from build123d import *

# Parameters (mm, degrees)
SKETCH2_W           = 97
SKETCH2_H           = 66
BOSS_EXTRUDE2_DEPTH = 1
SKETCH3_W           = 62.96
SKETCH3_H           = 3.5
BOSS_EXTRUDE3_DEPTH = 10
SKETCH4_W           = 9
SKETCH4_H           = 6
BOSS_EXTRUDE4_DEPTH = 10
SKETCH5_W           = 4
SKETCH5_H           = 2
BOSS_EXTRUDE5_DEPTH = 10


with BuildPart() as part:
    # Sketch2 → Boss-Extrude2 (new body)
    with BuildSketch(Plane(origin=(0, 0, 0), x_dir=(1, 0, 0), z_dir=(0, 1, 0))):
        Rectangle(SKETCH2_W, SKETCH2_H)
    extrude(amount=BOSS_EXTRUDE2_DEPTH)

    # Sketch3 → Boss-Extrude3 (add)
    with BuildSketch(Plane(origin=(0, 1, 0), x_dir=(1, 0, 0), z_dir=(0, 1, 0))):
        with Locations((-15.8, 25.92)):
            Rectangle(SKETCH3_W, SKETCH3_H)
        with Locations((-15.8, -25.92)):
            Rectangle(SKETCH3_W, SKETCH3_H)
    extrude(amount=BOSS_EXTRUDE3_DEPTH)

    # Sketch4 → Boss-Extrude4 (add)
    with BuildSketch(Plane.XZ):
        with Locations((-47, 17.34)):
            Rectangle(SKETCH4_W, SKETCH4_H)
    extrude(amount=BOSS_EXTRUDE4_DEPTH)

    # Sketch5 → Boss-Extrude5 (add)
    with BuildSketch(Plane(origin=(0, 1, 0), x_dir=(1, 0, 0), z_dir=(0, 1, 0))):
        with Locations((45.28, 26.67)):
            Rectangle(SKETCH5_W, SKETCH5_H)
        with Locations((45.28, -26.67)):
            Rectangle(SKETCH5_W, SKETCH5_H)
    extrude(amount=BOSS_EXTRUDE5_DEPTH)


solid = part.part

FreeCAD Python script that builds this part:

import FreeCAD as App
import Part
import Sketcher

V = App.Vector
Q = App.Units.Quantity


def add_polygon(sketch, points):
    """Adds a closed chain of lines whose ends are joined by coincident constraints."""
    first, n = sketch.GeometryCount, len(points)
    for a, b in zip(points, points[1:] + points[:1]):
        sketch.addGeometry(Part.LineSegment(App.Vector(*a, 0), App.Vector(*b, 0)), False)
    for i in range(n):
        sketch.addConstraint(Sketcher.Constraint("Coincident", first + i, 2, first + (i + 1) % n, 1))

doc = App.newDocument("Part")
body = doc.addObject("PartDesign::Body", "Body")

sketch1 = body.newObject("Sketcher::SketchObject", "Sketch")
sketch1.AttachmentSupport = (doc.getObject("XZ_Plane"), [""])
sketch1.MapMode = "FlatFace"
add_polygon(sketch1, [(-48.5, -33), (-48.5, 33), (48.5, 33), (48.5, -33)])
sketch1.addConstraint(Sketcher.Constraint("Vertical", 0))
sketch1.addConstraint(Sketcher.Constraint("Horizontal", 1))
sketch1.addConstraint(Sketcher.Constraint("Vertical", 2))
sketch1.addConstraint(Sketcher.Constraint("Horizontal", 3))
sketch1.addConstraint(Sketcher.Constraint("Symmetric", 0, 2, 2, 2, -1, 1))
sketch1.addConstraint(Sketcher.Constraint("DistanceX", 1, 1, 1, 2, Q("97 mm")))
sketch1.addConstraint(Sketcher.Constraint("DistanceY", 0, 1, 0, 2, Q("66 mm")))
pad1 = body.newObject("PartDesign::Pad", "Pad")
pad1.Profile = sketch1
pad1.Length = 1
pad1.Reversed = True

sketch2 = body.newObject("Sketcher::SketchObject", "Sketch001")
sketch2.AttachmentSupport = (doc.getObject("XZ_Plane"), [""])
sketch2.MapMode = "FlatFace"
sketch2.AttachmentOffset = App.Placement(V(0, 0, -1), App.Rotation())
add_polygon(sketch2, [(-47.28, -27.67), (-47.28, -24.17), (15.68, -24.17), (15.68, -27.67)])
add_polygon(sketch2, [(-47.28, 24.17), (-47.28, 27.67), (15.68, 27.67), (15.68, 24.17)])
sketch2.addConstraint(Sketcher.Constraint("Vertical", 0))
sketch2.addConstraint(Sketcher.Constraint("Horizontal", 1))
sketch2.addConstraint(Sketcher.Constraint("Vertical", 2))
sketch2.addConstraint(Sketcher.Constraint("Horizontal", 3))
sketch2.addConstraint(Sketcher.Constraint("Vertical", 4))
sketch2.addConstraint(Sketcher.Constraint("Horizontal", 5))
sketch2.addConstraint(Sketcher.Constraint("Vertical", 6))
sketch2.addConstraint(Sketcher.Constraint("Horizontal", 7))
sketch2.addConstraint(Sketcher.Constraint("Symmetric", 3, 2, 4, 2, -1))
sketch2.addConstraint(Sketcher.Constraint("Symmetric", 1, 2, 6, 2, -1))
sketch2.addConstraint(Sketcher.Constraint("DistanceY", 0, 1, 0, 2, Q("3.5 mm")))
sketch2.addConstraint(Sketcher.Constraint("DistanceX", 1, 1, 1, 2, Q("62.96 mm")))
sketch2.addConstraint(Sketcher.Constraint("DistanceX", 0, 2, -1, 1, Q("47.28 mm")))
sketch2.addConstraint(Sketcher.Constraint("DistanceY", 0, 2, -1, 1, Q("24.17 mm")))
pad2 = body.newObject("PartDesign::Pad", "Pad001")
pad2.Profile = sketch2
pad2.Length = 10
pad2.Reversed = True

sketch3 = body.newObject("Sketcher::SketchObject", "Sketch002")
sketch3.AttachmentSupport = (doc.getObject("XZ_Plane"), [""])
sketch3.MapMode = "FlatFace"
add_polygon(sketch3, [(-51.5, 20.34), (-51.5, 14.34), (-42.5, 14.34), (-42.5, 20.34)])
sketch3.addConstraint(Sketcher.Constraint("Vertical", 0))
sketch3.addConstraint(Sketcher.Constraint("Horizontal", 1))
sketch3.addConstraint(Sketcher.Constraint("Vertical", 2))
sketch3.addConstraint(Sketcher.Constraint("Horizontal", 3))
sketch3.addConstraint(Sketcher.Constraint("DistanceX", 1, 1, 1, 2, Q("9 mm")))
sketch3.addConstraint(Sketcher.Constraint("DistanceY", 0, 2, 0, 1, Q("6 mm")))
sketch3.addConstraint(Sketcher.Constraint("DistanceX", 0, 2, -1, 1, Q("51.5 mm")))
sketch3.addConstraint(Sketcher.Constraint("DistanceY", -1, 1, 0, 2, Q("14.34 mm")))
pad3 = body.newObject("PartDesign::Pad", "Pad002")
pad3.Profile = sketch3
pad3.Length = 10

sketch4 = body.newObject("Sketcher::SketchObject", "Sketch003")
sketch4.AttachmentSupport = (doc.getObject("XZ_Plane"), [""])
sketch4.MapMode = "FlatFace"
sketch4.AttachmentOffset = App.Placement(V(0, 0, -1), App.Rotation())
add_polygon(sketch4, [(43.28, -27.67), (43.28, -25.67), (47.28, -25.67), (47.28, -27.67)])
add_polygon(sketch4, [(43.28, 25.67), (43.28, 27.67), (47.28, 27.67), (47.28, 25.67)])
sketch4.addConstraint(Sketcher.Constraint("Vertical", 0))
sketch4.addConstraint(Sketcher.Constraint("Horizontal", 1))
sketch4.addConstraint(Sketcher.Constraint("Vertical", 2))
sketch4.addConstraint(Sketcher.Constraint("Horizontal", 3))
sketch4.addConstraint(Sketcher.Constraint("Vertical", 4))
sketch4.addConstraint(Sketcher.Constraint("Horizontal", 5))
sketch4.addConstraint(Sketcher.Constraint("Vertical", 6))
sketch4.addConstraint(Sketcher.Constraint("Horizontal", 7))
sketch4.addConstraint(Sketcher.Constraint("Symmetric", 3, 2, 4, 2, -1))
sketch4.addConstraint(Sketcher.Constraint("Symmetric", 1, 2, 6, 2, -1))
sketch4.addConstraint(Sketcher.Constraint("DistanceX", 1, 1, 1, 2, Q("4 mm")))
sketch4.addConstraint(Sketcher.Constraint("DistanceY", 0, 1, 0, 2, Q("2 mm")))
sketch4.addConstraint(Sketcher.Constraint("DistanceX", -1, 1, 0, 2, Q("43.28 mm")))
sketch4.addConstraint(Sketcher.Constraint("DistanceY", 0, 2, -1, 1, Q("25.67 mm")))
pad4 = body.newObject("PartDesign::Pad", "Pad003")
pad4.Profile = sketch4
pad4.Length = 10
pad4.Reversed = True

doc.recompute()
